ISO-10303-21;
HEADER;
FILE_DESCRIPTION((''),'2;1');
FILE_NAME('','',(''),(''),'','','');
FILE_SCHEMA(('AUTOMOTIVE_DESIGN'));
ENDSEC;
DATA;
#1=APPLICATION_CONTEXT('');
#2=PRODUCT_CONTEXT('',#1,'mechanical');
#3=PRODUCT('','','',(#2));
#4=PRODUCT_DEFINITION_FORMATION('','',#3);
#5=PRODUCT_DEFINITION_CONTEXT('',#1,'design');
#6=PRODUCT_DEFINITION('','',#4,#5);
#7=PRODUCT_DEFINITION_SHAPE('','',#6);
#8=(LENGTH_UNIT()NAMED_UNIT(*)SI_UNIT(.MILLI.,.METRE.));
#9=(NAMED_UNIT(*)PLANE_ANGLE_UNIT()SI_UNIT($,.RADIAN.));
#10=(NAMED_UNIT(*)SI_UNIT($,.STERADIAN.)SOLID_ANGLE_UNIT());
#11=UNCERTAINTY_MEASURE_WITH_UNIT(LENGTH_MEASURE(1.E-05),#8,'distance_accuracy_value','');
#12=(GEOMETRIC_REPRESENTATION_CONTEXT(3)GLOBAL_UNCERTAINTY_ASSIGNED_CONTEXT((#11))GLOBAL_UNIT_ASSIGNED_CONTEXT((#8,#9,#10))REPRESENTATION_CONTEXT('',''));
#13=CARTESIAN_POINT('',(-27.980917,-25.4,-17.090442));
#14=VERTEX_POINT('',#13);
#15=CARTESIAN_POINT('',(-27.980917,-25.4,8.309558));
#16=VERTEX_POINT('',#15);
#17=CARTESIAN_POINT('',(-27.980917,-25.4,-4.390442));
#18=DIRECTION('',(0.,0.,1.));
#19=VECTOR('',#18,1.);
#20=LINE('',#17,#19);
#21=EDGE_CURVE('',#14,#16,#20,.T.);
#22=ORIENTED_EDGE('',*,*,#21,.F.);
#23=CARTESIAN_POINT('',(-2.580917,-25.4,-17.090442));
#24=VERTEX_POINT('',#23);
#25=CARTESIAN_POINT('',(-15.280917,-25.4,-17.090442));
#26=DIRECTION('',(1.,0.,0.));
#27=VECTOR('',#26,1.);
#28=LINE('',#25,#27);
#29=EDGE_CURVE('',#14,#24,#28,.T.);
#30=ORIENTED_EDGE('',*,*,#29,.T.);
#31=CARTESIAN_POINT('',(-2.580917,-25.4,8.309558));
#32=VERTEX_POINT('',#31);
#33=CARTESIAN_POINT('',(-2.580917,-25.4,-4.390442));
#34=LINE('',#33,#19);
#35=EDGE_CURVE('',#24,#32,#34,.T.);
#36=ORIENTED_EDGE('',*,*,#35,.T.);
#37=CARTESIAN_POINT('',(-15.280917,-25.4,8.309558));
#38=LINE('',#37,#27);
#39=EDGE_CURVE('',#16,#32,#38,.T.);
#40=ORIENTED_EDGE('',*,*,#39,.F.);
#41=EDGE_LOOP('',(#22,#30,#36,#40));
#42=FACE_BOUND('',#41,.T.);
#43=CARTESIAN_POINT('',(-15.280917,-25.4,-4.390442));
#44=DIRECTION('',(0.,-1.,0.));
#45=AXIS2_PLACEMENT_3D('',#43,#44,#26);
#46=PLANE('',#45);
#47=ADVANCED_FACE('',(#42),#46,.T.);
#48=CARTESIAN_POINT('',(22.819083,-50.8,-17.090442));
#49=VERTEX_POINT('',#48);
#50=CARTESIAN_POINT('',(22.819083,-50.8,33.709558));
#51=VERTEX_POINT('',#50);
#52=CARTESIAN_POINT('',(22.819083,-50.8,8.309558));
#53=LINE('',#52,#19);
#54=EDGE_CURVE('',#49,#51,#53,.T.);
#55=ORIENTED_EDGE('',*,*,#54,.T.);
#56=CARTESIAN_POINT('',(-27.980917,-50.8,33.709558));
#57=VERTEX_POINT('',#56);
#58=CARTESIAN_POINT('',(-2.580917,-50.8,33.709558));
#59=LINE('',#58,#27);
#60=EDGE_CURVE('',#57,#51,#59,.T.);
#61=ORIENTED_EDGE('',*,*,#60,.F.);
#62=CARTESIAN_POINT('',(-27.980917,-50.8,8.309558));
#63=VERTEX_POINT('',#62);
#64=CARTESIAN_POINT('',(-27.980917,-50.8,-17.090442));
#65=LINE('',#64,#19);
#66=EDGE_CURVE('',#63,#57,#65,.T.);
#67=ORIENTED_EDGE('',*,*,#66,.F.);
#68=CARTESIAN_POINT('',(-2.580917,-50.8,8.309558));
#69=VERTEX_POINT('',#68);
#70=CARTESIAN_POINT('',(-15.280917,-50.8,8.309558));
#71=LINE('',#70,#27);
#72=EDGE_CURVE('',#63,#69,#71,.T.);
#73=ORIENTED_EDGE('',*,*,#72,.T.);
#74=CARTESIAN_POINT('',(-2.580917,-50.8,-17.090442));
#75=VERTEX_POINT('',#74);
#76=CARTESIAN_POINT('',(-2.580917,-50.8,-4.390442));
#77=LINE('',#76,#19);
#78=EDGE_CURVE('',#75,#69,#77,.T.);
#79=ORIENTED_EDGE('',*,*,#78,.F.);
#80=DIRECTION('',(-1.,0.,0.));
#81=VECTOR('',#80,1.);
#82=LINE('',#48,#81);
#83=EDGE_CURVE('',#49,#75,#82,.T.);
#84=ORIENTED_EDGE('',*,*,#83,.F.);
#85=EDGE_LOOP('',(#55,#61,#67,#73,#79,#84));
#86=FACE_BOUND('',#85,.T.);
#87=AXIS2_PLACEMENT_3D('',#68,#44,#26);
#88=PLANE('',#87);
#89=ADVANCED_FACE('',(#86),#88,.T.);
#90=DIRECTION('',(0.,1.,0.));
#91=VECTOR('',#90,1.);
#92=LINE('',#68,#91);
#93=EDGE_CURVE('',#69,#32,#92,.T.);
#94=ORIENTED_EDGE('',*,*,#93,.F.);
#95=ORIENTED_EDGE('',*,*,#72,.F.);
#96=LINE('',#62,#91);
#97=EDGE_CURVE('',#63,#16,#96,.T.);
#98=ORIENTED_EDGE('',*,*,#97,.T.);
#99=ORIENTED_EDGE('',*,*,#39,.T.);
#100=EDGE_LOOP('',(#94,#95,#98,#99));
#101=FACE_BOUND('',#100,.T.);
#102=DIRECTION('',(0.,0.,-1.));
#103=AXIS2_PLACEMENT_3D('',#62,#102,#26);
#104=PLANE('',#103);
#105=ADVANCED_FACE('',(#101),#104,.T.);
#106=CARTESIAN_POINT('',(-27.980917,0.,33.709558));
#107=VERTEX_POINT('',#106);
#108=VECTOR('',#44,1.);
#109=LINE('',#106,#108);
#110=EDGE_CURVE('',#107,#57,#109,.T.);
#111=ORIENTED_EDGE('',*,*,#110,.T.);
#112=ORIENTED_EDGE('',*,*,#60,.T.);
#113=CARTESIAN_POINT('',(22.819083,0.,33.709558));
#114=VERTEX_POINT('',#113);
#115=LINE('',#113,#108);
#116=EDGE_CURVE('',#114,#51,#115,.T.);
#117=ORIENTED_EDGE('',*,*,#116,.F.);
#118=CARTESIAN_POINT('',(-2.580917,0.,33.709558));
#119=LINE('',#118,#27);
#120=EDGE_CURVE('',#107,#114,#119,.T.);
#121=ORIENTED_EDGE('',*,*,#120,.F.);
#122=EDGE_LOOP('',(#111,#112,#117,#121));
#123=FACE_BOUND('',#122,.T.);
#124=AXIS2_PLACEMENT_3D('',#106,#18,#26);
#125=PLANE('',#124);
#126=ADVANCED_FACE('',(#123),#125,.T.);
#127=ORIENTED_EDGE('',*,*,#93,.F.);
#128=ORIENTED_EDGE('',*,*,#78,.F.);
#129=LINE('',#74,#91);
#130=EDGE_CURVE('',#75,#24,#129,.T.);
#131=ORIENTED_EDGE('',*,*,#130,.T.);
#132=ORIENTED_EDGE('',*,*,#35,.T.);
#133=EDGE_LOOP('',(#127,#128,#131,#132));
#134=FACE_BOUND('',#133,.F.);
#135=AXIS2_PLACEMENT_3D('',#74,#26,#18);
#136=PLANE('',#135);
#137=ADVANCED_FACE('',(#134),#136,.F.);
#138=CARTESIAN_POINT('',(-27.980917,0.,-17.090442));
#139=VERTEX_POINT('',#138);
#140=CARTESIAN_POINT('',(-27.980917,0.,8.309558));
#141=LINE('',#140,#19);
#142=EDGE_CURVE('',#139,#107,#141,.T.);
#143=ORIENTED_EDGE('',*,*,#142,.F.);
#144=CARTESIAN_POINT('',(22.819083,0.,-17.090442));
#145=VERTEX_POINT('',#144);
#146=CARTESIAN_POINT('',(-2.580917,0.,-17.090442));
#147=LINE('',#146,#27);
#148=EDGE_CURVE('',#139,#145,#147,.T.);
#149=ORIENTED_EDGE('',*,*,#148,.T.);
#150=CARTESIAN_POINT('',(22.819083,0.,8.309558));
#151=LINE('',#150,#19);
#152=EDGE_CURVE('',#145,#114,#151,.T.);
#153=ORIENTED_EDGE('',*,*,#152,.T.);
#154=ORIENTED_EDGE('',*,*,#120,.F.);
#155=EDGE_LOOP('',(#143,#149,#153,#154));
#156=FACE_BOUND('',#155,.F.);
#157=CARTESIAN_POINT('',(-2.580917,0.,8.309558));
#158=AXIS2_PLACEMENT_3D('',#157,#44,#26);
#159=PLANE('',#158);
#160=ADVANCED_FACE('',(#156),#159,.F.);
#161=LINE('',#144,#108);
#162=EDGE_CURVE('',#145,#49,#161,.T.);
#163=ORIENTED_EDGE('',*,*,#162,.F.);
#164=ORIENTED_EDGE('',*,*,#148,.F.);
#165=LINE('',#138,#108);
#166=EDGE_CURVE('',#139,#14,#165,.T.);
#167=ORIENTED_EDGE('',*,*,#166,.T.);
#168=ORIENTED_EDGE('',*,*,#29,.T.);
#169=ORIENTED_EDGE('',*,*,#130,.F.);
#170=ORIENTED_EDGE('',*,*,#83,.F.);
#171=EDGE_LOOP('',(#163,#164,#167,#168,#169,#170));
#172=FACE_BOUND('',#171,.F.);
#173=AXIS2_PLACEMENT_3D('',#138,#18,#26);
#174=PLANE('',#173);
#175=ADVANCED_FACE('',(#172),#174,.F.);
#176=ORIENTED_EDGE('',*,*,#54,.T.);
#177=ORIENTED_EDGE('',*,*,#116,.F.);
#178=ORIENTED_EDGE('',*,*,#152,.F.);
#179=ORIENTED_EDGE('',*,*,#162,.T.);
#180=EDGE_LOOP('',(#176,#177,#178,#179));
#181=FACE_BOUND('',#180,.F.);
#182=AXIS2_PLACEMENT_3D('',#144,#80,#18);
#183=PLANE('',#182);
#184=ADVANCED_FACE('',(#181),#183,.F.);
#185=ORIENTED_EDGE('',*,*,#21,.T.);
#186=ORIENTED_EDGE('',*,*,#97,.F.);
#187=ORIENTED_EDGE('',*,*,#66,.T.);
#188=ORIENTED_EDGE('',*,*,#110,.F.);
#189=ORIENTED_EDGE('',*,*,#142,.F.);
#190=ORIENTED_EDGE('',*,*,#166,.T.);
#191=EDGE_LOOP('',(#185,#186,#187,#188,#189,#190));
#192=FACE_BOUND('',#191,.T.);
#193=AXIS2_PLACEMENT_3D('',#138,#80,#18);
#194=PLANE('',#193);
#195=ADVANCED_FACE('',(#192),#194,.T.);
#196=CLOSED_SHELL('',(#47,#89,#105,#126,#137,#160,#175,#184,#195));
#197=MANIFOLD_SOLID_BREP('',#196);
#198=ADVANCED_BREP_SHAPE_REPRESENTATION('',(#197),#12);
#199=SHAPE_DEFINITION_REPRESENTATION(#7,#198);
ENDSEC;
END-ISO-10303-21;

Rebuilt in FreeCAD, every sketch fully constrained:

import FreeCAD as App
import Part
import Sketcher
from FreeCAD import Vector
Q = App.Units.Quantity

doc = App.newDocument("Part")
body = doc.addObject("PartDesign::Body", "Body")

# Sketch on XZ plane
sketch1 = body.newObject("Sketcher::SketchObject", "Sketch")
sketch1.AttachmentSupport = (doc.getObject("XZ_Plane"), [""])
sketch1.MapMode = "FlatFace"
sketch1.addGeometry([
    Part.LineSegment(Vector(-28, 34, 0), Vector(-28, -17, 0)),
    Part.LineSegment(Vector(-28, -17, 0), Vector(23, -17, 0)),
    Part.LineSegment(Vector(23, -17, 0), Vector(23, 34, 0)),
    Part.LineSegment(Vector(23, 34, 0), Vector(-28, 34, 0)),
], False)
sketch1.addConstraint([
    Sketcher.Constraint("Coincident", 0, 2, 1, 1),
    Sketcher.Constraint("Coincident", 1, 2, 2, 1),
    Sketcher.Constraint("Coincident", 2, 2, 3, 1),
    Sketcher.Constraint("Coincident", 3, 2, 0, 1),
    Sketcher.Constraint("Vertical", 0),
    Sketcher.Constraint("Horizontal", 1),
    Sketcher.Constraint("Vertical", 2),
    Sketcher.Constraint("Horizontal", 3),
    Sketcher.Constraint("Equal", 3, 0),
    Sketcher.Constraint("DistanceX", 1, 1, 1, 2, Q("2 in")),
    Sketcher.Constraint("DistanceY", 0, 2, -1, 1, Q("17.090442 mm")),
    Sketcher.Constraint("DistanceX", 0, 2, -1, 1, Q("27.980917 mm")),
])
pad1 = body.newObject("PartDesign::Pad", "Pad")
pad1.Profile = sketch1
pad1.Length = Q("2 in")

# Sketch on XZ plane
sketch2 = body.newObject("Sketcher::SketchObject", "Sketch001")
sketch2.AttachmentSupport = (doc.getObject("XZ_Plane"), [""])
sketch2.MapMode = "FlatFace"
sketch2.AttachmentOffset = App.Placement(Vector(0, 0, 2 * 25.4), App.Rotation())
sketch2.addGeometry([
    Part.LineSegment(Vector(-28, 8, 0), Vector(-28, -17, 0)),
    Part.LineSegment(Vector(-28, -17, 0), Vector(-3, -17, 0)),
    Part.LineSegment(Vector(-3, -17, 0), Vector(-3, 8, 0)),
    Part.LineSegment(Vector(-3, 8, 0), Vector(-28, 8, 0)),
], False)
sketch2.addConstraint([
    Sketcher.Constraint("Coincident", 0, 2, 1, 1),
    Sketcher.Constraint("Coincident", 1, 2, 2, 1),
    Sketcher.Constraint("Coincident", 2, 2, 3, 1),
    Sketcher.Constraint("Coincident", 3, 2, 0, 1),
    Sketcher.Constraint("Vertical", 0),
    Sketcher.Constraint("Horizontal", 1),
    Sketcher.Constraint("Vertical", 2),
    Sketcher.Constraint("Horizontal", 3),
    Sketcher.Constraint("Equal", 3, 0),
    Sketcher.Constraint("DistanceX", 1, 1, 1, 2, Q("1 in")),
    Sketcher.Constraint("DistanceY", 0, 2, -1, 1, Q("17.090442 mm")),
    Sketcher.Constraint("DistanceX", 0, 2, -1, 1, Q("27.980917 mm")),
])
pocket1 = body.newObject("PartDesign::Pocket", "Pocket")
pocket1.Profile = sketch2
pocket1.Length = Q("1 in")
pocket1.Reversed = True

# Sketch on XZ plane
sketch3 = body.newObject("Sketcher::SketchObject", "Sketch002")
sketch3.AttachmentSupport = (doc.getObject("XZ_Plane"), [""])
sketch3.MapMode = "FlatFace"
sketch3.AttachmentOffset = App.Placement(Vector(0, 0, 2 * 25.4), App.Rotation())
sketch3.addGeometry([
    Part.LineSegment(Vector(-28, 8, 0), Vector(-28, -17, 0)),
    Part.LineSegment(Vector(-28, -17, 0), Vector(-3, -17, 0)),
    Part.LineSegment(Vector(-3, -17, 0), Vector(-3, 8, 0)),
    Part.LineSegment(Vector(-3, 8, 0), Vector(-28, 8, 0)),
], False)
sketch3.addConstraint([
    Sketcher.Constraint("Coincident", 0, 2, 1, 1),
    Sketcher.Constraint("Coincident", 1, 2, 2, 1),
    Sketcher.Constraint("Coincident", 2, 2, 3, 1),
    Sketcher.Constraint("Coincident", 3, 2, 0, 1),
    Sketcher.Constraint("Vertical", 0),
    Sketcher.Constraint("Horizontal", 1),
    Sketcher.Constraint("Vertical", 2),
    Sketcher.Constraint("Horizontal", 3),
    Sketcher.Constraint("Equal", 3, 0),
    Sketcher.Constraint("DistanceX", 1, 1, 1, 2, Q("1 in")),
    Sketcher.Constraint("DistanceY", 0, 2, -1, 1, Q("17.090442 mm")),
    Sketcher.Constraint("DistanceX", 0, 2, -1, 1, Q("27.980917 mm")),
])
pocket2 = body.newObject("PartDesign::Pocket", "Pocket001")
pocket2.Profile = sketch3
pocket2.Length = Q("1 in")

doc.recompute()
